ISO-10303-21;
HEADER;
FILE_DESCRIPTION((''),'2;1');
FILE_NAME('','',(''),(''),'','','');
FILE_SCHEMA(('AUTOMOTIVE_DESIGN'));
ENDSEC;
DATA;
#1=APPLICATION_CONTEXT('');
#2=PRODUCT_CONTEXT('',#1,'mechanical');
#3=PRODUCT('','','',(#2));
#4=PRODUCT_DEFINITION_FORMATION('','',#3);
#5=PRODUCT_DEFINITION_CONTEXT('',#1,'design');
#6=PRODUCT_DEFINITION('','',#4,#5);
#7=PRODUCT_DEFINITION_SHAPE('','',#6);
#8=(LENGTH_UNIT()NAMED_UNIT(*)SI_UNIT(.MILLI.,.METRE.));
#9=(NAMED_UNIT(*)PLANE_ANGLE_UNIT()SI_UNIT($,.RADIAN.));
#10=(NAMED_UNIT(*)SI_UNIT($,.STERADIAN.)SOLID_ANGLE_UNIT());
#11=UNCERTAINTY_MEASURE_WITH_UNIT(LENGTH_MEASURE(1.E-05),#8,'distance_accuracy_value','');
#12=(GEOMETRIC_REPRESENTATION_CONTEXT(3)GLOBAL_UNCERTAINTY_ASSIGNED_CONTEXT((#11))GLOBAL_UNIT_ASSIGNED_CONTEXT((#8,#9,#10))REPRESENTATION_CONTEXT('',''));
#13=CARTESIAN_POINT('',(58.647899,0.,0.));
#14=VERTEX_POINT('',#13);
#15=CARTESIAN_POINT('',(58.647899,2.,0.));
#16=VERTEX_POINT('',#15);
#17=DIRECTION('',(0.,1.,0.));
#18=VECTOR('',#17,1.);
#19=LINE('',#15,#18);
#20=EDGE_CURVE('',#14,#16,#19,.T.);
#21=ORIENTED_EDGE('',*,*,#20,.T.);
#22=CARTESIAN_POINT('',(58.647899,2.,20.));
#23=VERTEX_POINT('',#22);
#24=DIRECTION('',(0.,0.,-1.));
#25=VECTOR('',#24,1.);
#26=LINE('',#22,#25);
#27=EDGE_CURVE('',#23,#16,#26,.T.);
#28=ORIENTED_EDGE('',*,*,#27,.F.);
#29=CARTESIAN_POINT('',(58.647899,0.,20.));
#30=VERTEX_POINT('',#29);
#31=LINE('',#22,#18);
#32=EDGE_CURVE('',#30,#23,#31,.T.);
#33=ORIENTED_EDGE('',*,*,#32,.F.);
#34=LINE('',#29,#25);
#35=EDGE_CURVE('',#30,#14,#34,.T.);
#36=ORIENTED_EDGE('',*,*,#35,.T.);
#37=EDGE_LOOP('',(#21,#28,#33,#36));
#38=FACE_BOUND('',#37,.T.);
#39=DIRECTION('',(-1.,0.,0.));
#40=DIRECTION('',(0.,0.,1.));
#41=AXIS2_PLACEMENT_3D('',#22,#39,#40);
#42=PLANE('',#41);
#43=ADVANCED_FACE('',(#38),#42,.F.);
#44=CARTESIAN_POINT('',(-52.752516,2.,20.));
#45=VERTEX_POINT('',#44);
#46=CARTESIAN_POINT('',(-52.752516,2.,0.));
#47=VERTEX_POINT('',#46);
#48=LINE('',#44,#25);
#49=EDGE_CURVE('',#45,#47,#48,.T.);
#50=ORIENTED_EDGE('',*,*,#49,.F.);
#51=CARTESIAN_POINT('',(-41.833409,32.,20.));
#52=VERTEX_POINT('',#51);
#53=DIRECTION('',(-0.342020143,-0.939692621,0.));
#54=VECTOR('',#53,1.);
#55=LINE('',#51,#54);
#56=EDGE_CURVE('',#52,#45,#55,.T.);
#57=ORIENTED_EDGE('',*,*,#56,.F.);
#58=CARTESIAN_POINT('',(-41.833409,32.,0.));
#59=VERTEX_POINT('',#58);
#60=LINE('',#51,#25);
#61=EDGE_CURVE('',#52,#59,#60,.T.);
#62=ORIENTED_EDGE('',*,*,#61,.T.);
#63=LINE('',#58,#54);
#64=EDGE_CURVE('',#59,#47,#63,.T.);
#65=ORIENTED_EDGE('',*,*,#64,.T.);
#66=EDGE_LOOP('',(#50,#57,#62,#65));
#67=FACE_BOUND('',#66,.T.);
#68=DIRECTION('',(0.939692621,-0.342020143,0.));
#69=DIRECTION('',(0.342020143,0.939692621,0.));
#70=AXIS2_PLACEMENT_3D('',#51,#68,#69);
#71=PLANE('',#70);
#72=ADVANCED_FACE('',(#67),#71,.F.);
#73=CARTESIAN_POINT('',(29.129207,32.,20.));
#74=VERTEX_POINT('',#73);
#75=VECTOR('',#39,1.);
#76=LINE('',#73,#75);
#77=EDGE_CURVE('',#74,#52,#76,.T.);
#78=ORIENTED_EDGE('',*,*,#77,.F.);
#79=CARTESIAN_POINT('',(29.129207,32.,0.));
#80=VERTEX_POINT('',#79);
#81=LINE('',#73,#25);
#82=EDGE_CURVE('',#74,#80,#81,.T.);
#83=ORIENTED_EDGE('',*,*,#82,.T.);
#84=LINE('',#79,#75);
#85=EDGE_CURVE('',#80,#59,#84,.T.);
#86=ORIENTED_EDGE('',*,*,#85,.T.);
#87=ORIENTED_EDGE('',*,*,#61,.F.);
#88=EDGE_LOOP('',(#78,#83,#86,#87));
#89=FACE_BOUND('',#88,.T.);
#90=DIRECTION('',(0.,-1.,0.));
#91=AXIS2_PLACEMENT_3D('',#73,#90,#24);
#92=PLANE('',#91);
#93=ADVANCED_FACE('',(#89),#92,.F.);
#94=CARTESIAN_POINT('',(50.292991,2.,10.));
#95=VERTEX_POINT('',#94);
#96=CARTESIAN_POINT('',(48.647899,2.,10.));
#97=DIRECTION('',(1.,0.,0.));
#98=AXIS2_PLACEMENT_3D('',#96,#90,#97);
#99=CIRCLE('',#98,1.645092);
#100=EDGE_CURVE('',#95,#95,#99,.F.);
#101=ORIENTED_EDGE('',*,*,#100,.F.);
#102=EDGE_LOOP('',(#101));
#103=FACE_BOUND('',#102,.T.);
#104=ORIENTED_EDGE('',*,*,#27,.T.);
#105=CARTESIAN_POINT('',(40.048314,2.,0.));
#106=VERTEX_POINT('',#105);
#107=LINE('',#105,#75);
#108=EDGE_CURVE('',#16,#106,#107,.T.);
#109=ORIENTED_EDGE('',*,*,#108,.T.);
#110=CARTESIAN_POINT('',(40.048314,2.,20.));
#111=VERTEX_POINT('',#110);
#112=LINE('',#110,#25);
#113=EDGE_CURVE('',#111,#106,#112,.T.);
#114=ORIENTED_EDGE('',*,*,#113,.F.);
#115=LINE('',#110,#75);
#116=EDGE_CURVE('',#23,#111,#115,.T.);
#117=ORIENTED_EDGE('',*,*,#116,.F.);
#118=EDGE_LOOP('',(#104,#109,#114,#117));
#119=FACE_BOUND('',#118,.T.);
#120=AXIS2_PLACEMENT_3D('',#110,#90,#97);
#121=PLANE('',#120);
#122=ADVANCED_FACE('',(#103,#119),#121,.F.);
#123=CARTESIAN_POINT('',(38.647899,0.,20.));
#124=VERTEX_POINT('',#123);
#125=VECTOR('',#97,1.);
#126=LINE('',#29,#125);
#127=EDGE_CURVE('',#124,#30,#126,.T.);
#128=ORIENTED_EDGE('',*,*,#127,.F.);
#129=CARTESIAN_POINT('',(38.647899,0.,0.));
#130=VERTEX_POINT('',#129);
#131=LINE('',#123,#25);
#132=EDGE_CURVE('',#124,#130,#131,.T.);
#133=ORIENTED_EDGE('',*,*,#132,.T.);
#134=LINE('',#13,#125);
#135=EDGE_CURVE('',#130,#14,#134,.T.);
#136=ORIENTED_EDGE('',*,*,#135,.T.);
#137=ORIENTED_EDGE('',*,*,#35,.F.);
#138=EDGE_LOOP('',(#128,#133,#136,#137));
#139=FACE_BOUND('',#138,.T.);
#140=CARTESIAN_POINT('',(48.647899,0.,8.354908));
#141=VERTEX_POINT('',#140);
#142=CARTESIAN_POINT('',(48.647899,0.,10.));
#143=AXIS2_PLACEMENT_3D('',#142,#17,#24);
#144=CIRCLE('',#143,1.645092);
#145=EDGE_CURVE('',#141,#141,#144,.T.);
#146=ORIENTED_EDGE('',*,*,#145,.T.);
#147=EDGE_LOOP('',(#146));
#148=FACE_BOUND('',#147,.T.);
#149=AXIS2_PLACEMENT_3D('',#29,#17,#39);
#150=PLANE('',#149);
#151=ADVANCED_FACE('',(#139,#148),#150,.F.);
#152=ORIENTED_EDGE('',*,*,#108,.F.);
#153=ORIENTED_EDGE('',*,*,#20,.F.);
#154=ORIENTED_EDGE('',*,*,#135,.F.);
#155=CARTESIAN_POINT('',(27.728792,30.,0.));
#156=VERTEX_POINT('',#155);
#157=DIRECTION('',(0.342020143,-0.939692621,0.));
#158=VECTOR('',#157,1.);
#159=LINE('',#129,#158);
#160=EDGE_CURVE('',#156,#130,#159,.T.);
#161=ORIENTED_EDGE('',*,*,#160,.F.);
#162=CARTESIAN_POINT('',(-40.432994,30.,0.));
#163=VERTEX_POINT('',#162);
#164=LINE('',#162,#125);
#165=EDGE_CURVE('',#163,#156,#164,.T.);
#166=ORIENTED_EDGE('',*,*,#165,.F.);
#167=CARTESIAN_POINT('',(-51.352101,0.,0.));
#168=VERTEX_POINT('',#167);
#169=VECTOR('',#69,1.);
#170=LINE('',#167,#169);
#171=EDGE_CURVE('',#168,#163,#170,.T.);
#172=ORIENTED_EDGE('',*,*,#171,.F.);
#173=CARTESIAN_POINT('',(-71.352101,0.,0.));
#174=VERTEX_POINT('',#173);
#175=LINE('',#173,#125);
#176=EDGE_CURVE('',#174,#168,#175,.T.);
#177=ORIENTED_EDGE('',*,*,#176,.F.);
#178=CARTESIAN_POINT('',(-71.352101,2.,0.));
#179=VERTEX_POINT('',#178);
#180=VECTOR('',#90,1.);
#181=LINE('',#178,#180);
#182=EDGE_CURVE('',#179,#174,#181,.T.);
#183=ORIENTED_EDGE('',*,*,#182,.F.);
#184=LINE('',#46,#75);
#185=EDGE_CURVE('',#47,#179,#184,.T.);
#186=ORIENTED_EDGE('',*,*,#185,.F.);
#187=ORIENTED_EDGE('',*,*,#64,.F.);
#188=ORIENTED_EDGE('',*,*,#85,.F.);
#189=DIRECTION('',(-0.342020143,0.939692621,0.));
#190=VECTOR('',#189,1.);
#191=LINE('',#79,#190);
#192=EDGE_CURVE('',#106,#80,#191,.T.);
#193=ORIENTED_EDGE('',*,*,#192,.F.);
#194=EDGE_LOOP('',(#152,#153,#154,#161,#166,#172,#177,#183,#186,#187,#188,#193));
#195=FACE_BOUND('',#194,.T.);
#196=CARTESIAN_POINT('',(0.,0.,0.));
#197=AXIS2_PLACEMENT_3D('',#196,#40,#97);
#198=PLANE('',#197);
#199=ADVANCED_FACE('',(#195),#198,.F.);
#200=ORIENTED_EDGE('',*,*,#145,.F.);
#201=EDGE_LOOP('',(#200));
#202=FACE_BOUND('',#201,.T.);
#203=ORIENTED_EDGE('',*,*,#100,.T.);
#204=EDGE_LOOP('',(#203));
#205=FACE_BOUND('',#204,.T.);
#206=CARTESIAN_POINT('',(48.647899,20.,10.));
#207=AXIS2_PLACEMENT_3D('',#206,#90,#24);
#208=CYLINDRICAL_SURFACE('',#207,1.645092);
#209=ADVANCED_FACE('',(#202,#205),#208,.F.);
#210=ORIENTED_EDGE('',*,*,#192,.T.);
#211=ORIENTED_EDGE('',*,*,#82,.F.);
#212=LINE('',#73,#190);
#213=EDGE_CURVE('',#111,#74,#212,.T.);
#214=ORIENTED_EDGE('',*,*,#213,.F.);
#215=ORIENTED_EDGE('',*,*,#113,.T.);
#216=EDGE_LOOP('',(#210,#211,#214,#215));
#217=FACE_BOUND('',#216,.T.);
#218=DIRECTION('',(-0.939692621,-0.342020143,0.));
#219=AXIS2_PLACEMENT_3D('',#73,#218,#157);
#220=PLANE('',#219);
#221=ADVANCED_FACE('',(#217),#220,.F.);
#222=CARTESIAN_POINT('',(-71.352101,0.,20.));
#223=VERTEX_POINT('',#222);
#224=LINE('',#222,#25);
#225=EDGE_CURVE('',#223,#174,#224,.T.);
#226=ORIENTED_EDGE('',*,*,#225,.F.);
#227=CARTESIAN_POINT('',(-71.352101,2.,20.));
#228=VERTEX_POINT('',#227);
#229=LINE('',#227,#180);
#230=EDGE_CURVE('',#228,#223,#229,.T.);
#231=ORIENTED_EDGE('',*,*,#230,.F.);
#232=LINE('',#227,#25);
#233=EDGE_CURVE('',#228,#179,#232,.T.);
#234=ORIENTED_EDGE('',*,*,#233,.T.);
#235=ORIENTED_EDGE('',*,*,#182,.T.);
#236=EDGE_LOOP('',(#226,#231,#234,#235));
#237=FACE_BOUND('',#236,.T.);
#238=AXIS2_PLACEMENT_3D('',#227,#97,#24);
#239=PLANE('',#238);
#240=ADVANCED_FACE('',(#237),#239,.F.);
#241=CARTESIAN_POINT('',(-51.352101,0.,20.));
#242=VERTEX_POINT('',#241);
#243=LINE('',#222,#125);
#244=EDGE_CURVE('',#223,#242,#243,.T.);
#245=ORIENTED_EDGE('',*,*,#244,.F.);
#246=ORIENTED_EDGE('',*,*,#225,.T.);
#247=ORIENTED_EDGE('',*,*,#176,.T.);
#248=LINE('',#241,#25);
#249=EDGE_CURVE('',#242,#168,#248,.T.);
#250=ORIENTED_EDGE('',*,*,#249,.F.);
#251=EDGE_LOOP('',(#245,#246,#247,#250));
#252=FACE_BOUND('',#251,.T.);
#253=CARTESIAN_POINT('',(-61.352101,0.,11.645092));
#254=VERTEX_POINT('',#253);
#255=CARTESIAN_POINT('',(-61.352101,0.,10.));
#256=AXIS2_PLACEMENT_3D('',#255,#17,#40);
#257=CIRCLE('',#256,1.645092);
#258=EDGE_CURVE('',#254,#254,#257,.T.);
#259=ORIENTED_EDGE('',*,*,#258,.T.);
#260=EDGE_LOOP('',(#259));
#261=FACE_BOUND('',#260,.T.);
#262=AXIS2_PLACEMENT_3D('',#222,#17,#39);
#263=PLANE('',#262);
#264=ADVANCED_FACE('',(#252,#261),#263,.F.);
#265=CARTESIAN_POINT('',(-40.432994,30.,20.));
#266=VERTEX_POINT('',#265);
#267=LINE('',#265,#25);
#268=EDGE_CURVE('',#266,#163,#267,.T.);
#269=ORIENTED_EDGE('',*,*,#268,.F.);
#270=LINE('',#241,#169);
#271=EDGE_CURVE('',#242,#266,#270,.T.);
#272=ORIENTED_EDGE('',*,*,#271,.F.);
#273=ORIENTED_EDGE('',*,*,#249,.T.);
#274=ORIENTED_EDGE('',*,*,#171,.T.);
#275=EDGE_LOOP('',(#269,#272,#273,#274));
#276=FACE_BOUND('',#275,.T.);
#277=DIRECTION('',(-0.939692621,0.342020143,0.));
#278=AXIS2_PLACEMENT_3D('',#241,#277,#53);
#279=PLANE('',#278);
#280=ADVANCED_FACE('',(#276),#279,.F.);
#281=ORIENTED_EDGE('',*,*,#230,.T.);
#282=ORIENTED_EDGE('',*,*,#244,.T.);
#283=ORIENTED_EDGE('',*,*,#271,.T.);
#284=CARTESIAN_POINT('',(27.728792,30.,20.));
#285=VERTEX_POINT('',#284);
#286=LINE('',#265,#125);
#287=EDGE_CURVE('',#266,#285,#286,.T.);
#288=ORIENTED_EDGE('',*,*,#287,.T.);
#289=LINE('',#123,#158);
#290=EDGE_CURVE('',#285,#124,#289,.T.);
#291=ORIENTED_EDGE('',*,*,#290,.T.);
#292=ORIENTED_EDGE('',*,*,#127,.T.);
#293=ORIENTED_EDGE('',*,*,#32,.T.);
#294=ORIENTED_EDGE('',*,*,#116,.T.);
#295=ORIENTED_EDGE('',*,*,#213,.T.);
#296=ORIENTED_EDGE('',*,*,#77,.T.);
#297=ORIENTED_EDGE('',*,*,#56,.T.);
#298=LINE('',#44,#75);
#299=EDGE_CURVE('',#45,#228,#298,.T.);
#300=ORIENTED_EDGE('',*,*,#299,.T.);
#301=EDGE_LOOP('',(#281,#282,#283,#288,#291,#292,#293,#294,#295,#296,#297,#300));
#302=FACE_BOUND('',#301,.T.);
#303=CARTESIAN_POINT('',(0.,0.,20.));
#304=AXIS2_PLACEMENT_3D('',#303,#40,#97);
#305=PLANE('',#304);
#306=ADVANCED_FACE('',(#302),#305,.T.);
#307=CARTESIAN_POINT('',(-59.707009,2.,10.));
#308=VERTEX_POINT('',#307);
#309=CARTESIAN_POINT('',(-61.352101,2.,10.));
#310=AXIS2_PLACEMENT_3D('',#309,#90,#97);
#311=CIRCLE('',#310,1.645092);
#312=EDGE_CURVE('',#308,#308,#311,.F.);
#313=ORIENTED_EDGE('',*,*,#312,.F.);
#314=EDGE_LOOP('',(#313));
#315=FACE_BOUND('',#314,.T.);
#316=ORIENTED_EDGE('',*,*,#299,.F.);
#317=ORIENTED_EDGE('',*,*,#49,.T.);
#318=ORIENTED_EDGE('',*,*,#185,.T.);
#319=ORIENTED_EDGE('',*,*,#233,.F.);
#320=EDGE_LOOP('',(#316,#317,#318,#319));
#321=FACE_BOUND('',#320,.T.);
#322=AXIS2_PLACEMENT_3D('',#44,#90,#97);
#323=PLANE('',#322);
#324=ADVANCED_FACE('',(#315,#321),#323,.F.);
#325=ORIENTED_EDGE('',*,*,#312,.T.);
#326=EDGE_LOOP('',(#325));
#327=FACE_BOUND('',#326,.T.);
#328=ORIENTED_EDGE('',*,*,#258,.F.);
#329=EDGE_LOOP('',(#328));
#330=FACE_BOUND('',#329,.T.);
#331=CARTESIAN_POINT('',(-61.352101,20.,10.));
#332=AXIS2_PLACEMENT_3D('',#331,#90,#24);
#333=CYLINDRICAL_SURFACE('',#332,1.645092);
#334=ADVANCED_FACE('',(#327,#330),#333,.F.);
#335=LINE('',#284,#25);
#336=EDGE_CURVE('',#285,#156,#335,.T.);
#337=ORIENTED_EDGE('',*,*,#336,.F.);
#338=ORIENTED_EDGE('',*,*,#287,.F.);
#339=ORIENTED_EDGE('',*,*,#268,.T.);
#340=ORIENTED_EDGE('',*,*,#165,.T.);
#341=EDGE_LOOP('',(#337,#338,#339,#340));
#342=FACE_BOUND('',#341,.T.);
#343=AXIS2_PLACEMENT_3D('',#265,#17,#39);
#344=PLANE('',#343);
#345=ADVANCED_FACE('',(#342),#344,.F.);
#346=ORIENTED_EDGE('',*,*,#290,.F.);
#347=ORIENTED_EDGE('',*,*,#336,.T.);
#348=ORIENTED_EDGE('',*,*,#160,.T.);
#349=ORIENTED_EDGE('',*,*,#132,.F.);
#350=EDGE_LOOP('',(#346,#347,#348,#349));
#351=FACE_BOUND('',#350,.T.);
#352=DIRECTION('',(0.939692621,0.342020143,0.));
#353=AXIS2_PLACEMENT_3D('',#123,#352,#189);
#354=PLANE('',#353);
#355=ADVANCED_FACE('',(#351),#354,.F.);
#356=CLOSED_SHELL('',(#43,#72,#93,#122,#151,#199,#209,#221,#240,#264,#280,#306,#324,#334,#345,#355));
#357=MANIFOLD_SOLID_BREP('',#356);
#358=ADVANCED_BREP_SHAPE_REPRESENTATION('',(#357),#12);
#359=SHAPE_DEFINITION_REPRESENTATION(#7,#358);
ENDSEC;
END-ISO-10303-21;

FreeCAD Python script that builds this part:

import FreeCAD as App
import Part
import Sketcher

V = App.Vector
Q = App.Units.Quantity

doc = App.newDocument("Part")
body = doc.addObject("PartDesign::Body", "Body")

# Sketch on XY plane
sketch1 = body.newObject("Sketcher::SketchObject", "Sketch")
sketch1.AttachmentSupport = (doc.getObject("XY_Plane"), [""])
sketch1.MapMode = "FlatFace"
sketch1.addGeometry(Part.LineSegment(V(-71.4, 0, 0), V(-51.4, 0, 0)), False)
sketch1.addGeometry(Part.LineSegment(V(-51.4, 0, 0), V(-40.4, 30, 0)), False)
sketch1.addGeometry(Part.LineSegment(V(-40.4, 30, 0), V(27.7, 30, 0)), False)
sketch1.addGeometry(Part.LineSegment(V(27.7, 30, 0), V(38.6, 0, 0)), False)
sketch1.addGeometry(Part.LineSegment(V(38.6, 0, 0), V(58.6, 0, 0)), False)
sketch1.addGeometry(Part.LineSegment(V(58.6, 0, 0), V(58.6, 2, 0)), False)
sketch1.addGeometry(Part.LineSegment(V(58.6, 2, 0), V(40, 2, 0)), False)
sketch1.addGeometry(Part.LineSegment(V(40, 2, 0), V(29.1, 32, 0)), False)
sketch1.addGeometry(Part.LineSegment(V(29.1, 32, 0), V(-41.8, 32, 0)), False)
sketch1.addGeometry(Part.LineSegment(V(-41.8, 32, 0), V(-52.8, 2, 0)), False)
sketch1.addGeometry(Part.LineSegment(V(-52.8, 2, 0), V(-71.4, 2, 0)), False)
sketch1.addGeometry(Part.LineSegment(V(-71.4, 2, 0), V(-71.4, 0, 0)), False)
sketch1.addConstraint(Sketcher.Constraint("Coincident", 0, 2, 1, 1))
sketch1.addConstraint(Sketcher.Constraint("Coincident", 1, 2, 2, 1))
sketch1.addConstraint(Sketcher.Constraint("Coincident", 2, 2, 3, 1))
sketch1.addConstraint(Sketcher.Constraint("Coincident", 3, 2, 4, 1))
sketch1.addConstraint(Sketcher.Constraint("Coincident", 4, 2, 5, 1))
sketch1.addConstraint(Sketcher.Constraint("Coincident", 5, 2, 6, 1))
sketch1.addConstraint(Sketcher.Constraint("Coincident", 6, 2, 7, 1))
sketch1.addConstraint(Sketcher.Constraint("Coincident", 7, 2, 8, 1))
sketch1.addConstraint(Sketcher.Constraint("Coincident", 8, 2, 9, 1))
sketch1.addConstraint(Sketcher.Constraint("Coincident", 9, 2, 10, 1))
sketch1.addConstraint(Sketcher.Constraint("Coincident", 10, 2, 11, 1))
sketch1.addConstraint(Sketcher.Constraint("Coincident", 11, 2, 0, 1))
sketch1.addConstraint(Sketcher.Constraint("Horizontal", 0))
sketch1.addConstraint(Sketcher.Constraint("Horizontal", 2))
sketch1.addConstraint(Sketcher.Constraint("Horizontal", 4))
sketch1.addConstraint(Sketcher.Constraint("Vertical", 5))
sketch1.addConstraint(Sketcher.Constraint("Horizontal", 6))
sketch1.addConstraint(Sketcher.Constraint("Horizontal", 8))
sketch1.addConstraint(Sketcher.Constraint("Horizontal", 10))
sketch1.addConstraint(Sketcher.Constraint("Vertical", 11))
sketch1.addConstraint(Sketcher.Constraint("PointOnObject", 0, 2, -1))
sketch1.addConstraint(Sketcher.Constraint("PointOnObject", 3, 2, -1))
sketch1.addConstraint(Sketcher.Constraint("Parallel", 3, 7))
sketch1.addConstraint(Sketcher.Constraint("Parallel", 1, 9))
sketch1.addConstraint(Sketcher.Constraint("Horizontal", 6, 2, 9, 2))
sketch1.addConstraint(Sketcher.Constraint("Equal", 0, 4))
sketch1.addConstraint(Sketcher.Constraint("Equal", 6, 10))
sketch1.addConstraint(Sketcher.Constraint("Equal", 1, 3))
sketch1.addConstraint(Sketcher.Constraint("Equal", 3, 7))
sketch1.addConstraint(Sketcher.Constraint("DistanceX", 0, 1, 0, 2, 20.0))
sketch1.addConstraint(Sketcher.Constraint("DistanceY", 5, 1, 5, 2, 2.0))
sketch1.addConstraint(Sketcher.Constraint("Angle", 1, Q("70 deg")))
sketch1.addConstraint(Sketcher.Constraint("DistanceY", -1, 1, 1, 2, 30.0))
sketch1.addConstraint(Sketcher.Constraint("DistanceX", 0, 2, 3, 2, 90.0))
sketch1.addConstraint(Sketcher.Constraint("DistanceX", 0, 2, -1, 1, 51.352101))
sketch1.addConstraint(Sketcher.Constraint("DistanceX", 8, 2, 2, 2, 69.562201))
pad1 = body.newObject("PartDesign::Pad", "Pad")
pad1.Profile = sketch1
pad1.Length = 20

# Sketch on XZ plane
sketch2 = body.newObject("Sketcher::SketchObject", "Sketch001")
sketch2.AttachmentSupport = (doc.getObject("XZ_Plane"), [""])
sketch2.MapMode = "FlatFace"
sketch2.addGeometry(Part.Circle(V(-61.4, 10, 0), V(0, 0, 1), 1.6), False)
sketch2.addGeometry(Part.Circle(V(48.6, 10, 0), V(0, 0, 1), 1.6), False)
sketch2.addConstraint(Sketcher.Constraint("Equal", 0, 1))
sketch2.addConstraint(Sketcher.Constraint("Horizontal", 0, 3, 1, 3))
sketch2.addConstraint(Sketcher.Constraint("DistanceY", -1, 1, 0, 3, 10.0))
sketch2.addConstraint(Sketcher.Constraint("DistanceX", 0, 3, 1, 3, 110.0))
sketch2.addConstraint(Sketcher.Constraint("Diameter", 0, 3.290183))
sketch2.addConstraint(Sketcher.Constraint("DistanceX", 0, 3, -1, 1, 61.352101))
pocket1 = body.newObject("PartDesign::Pocket", "Pocket")
pocket1.Profile = sketch2
pocket1.Length = 20

doc.recompute()
